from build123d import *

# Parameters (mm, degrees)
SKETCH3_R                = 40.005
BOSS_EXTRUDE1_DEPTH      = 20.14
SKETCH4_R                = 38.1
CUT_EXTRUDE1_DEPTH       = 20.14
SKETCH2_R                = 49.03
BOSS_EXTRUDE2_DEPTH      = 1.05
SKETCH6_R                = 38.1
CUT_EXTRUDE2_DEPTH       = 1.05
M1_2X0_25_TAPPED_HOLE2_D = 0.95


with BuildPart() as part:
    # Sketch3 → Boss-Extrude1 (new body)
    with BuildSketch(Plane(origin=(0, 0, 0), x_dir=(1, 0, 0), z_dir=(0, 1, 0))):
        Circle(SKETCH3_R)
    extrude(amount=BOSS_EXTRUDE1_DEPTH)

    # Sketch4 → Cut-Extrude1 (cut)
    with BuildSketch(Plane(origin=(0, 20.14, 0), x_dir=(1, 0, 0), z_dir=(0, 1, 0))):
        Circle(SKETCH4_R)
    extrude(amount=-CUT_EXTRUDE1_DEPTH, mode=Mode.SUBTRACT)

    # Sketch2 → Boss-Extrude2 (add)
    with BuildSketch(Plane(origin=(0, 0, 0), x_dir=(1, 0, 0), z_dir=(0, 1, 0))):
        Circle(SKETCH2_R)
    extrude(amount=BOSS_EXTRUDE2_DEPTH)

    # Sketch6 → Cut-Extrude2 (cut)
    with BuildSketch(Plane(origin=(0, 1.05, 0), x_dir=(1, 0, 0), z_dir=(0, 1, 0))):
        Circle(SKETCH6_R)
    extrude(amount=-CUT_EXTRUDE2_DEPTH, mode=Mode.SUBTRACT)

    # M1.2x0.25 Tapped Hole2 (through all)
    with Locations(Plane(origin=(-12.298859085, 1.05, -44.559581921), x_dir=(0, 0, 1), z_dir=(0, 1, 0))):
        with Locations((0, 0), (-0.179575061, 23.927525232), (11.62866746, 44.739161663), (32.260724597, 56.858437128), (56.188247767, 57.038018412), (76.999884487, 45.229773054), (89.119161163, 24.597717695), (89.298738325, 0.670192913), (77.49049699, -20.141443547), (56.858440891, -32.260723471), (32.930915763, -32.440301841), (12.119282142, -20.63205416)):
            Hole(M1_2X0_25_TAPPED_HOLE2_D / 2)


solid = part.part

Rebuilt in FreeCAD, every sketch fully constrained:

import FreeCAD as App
import Part
import Sketcher

V = App.Vector
Q = App.Units.Quantity

doc = App.newDocument("Part")
params = doc.addObject("Spreadsheet::Sheet", "Params")
for row, (alias, value) in enumerate([
    ("sketch1_diameter", "3.15 in"),
    ("pad1_length", "20.14 mm"),
    ("sketch2_diameter", "3 in"),
    ("pocket1_length", "20.14 mm"),
    ("pad2_length", "1.05 mm"),
    ("sketch4_diameter", "3 in"),
    ("pocket2_length", "1.05 mm"),
    ("hole_diameter", "0.95 mm"),
], start=1):
    params.set(f"A{row}", alias)
    params.set(f"B{row}", "=" + value)
    params.setAlias(f"B{row}", alias)

body = doc.addObject("PartDesign::Body", "Body")

sketch1 = body.newObject("Sketcher::SketchObject", "Sketch")
sketch1.AttachmentSupport = (doc.getObject("XZ_Plane"), [""])
sketch1.MapMode = "FlatFace"
sketch1.addGeometry(Part.Circle(V(0, 0, 0), V(0, 0, 1), 40), False)
sketch1.addConstraint([
    Sketcher.Constraint("Coincident", 0, 3, -1, 1),
    Sketcher.Constraint("Diameter", 0, Q("3.15 in")),
])
sketch1.setExpression("Constraints[1]", "Params.sketch1_diameter")
pad1 = body.newObject("PartDesign::Pad", "Pad")
pad1.Profile = sketch1
pad1.setExpression("Length", "Params.pad1_length")
pad1.Reversed = True

sketch2 = body.newObject("Sketcher::SketchObject", "Sketch001")
sketch2.AttachmentSupport = (doc.getObject("XZ_Plane"), [""])
sketch2.MapMode = "FlatFace"
sketch2.AttachmentOffset = App.Placement(V(0, 0, -20.14), App.Rotation())
sketch2.addGeometry(Part.Circle(V(0, 0, 0), V(0, 0, 1), 38), False)
sketch2.addConstraint([
    Sketcher.Constraint("Coincident", 0, 3, -1, 1),
    Sketcher.Constraint("Diameter", 0, Q("3 in")),
])
sketch2.setExpression("Constraints[1]", "Params.sketch2_diameter")
pocket1 = body.newObject("PartDesign::Pocket", "Pocket")
pocket1.Profile = sketch2
pocket1.setExpression("Length", "Params.pocket1_length")
pocket1.Reversed = True

sketch3 = body.newObject("Sketcher::SketchObject", "Sketch002")
sketch3.AttachmentSupport = (doc.getObject("XZ_Plane"), [""])
sketch3.MapMode = "FlatFace"
sketch3.addGeometry(Part.Circle(V(0, 0, 0), V(0, 0, 1), 49), False)
sketch3.addConstraint([
    Sketcher.Constraint("Coincident", 0, 3, -1, 1),
    Sketcher.Constraint("Diameter", 0, Q("98.06 mm")),
])
pad2 = body.newObject("PartDesign::Pad", "Pad001")
pad2.Profile = sketch3
pad2.setExpression("Length", "Params.pad2_length")
pad2.Reversed = True

sketch4 = body.newObject("Sketcher::SketchObject", "Sketch003")
sketch4.AttachmentSupport = (doc.getObject("XZ_Plane"), [""])
sketch4.MapMode = "FlatFace"
sketch4.AttachmentOffset = App.Placement(V(0, 0, -1.05), App.Rotation())
sketch4.addGeometry(Part.Circle(V(0, 0, 0), V(0, 0, 1), 38), False)
sketch4.addConstraint([
    Sketcher.Constraint("Coincident", 0, 3, -1, 1),
    Sketcher.Constraint("Diameter", 0, Q("3 in")),
])
sketch4.setExpression("Constraints[1]", "Params.sketch4_diameter")
pocket2 = body.newObject("PartDesign::Pocket", "Pocket001")
pocket2.Profile = sketch4
pocket2.setExpression("Length", "Params.pocket2_length")
pocket2.Reversed = True

sketch5 = body.newObject("Sketcher::SketchObject", "Sketch004")
sketch5.AttachmentSupport = (doc.getObject("XZ_Plane"), [""])
sketch5.MapMode = "FlatFace"
sketch5.AttachmentOffset = App.Placement(V(0, 0, -1.05), App.Rotation())
sketch5.addGeometry([
    Part.Circle(V(-12.3, -44.56, 0), V(0, 0, 1), 0.47),
    Part.Circle(V(11.63, -44.74, 0), V(0, 0, 1), 0.47),
    Part.Circle(V(32.44, -32.93, 0), V(0, 0, 1), 0.47),
    Part.Circle(V(44.56, -12.3, 0), V(0, 0, 1), 0.47),
    Part.Circle(V(44.74, 11.63, 0), V(0, 0, 1), 0.47),
    Part.Circle(V(32.93, 32.44, 0), V(0, 0, 1), 0.47),
    Part.Circle(V(12.3, 44.56, 0), V(0, 0, 1), 0.47),
    Part.Circle(V(-11.63, 44.74, 0), V(0, 0, 1), 0.47),
    Part.Circle(V(-32.44, 32.93, 0), V(0, 0, 1), 0.47),
    Part.Circle(V(-44.56, 12.3, 0), V(0, 0, 1), 0.47),
    Part.Circle(V(-44.74, -11.63, 0), V(0, 0, 1), 0.47),
    Part.Circle(V(-32.93, -32.44, 0), V(0, 0, 1), 0.47),
], False)
sketch5.addConstraint([
    Sketcher.Constraint("Equal", 0, 1),
    Sketcher.Constraint("Equal", 1, 2),
    Sketcher.Constraint("Equal", 2, 3),
    Sketcher.Constraint("Equal", 3, 4),
    Sketcher.Constraint("Equal", 4, 5),
    Sketcher.Constraint("Equal", 5, 6),
    Sketcher.Constraint("Equal", 6, 7),
    Sketcher.Constraint("Equal", 7, 8),
    Sketcher.Constraint("Equal", 8, 9),
    Sketcher.Constraint("Equal", 9, 10),
    Sketcher.Constraint("Equal", 10, 11),
    Sketcher.Constraint("Symmetric", 0, 3, 6, 3, -1, 1),
    Sketcher.Constraint("Symmetric", 1, 3, 7, 3, -1, 1),
    Sketcher.Constraint("Symmetric", 2, 3, 8, 3, -1, 1),
    Sketcher.Constraint("Symmetric", 3, 3, 9, 3, -1, 1),
    Sketcher.Constraint("Symmetric", 4, 3, 10, 3, -1, 1),
    Sketcher.Constraint("Symmetric", 5, 3, 11, 3, -1, 1),
    Sketcher.Constraint("Diameter", 0, Q("0.95 mm")),
    Sketcher.Constraint("DistanceY", 11, 3, -1, 1, Q("32.4403 mm")),
    Sketcher.Constraint("DistanceY", 1, 3, 3, 3, Q("32.4403 mm")),
    Sketcher.Constraint("DistanceX", 6, 3, 4, 3, Q("32.440301 mm")),
    Sketcher.Constraint("DistanceX", 0, 3, -1, 1, Q("12.298859 mm")),
    Sketcher.Constraint("DistanceY", 0, 3, -1, 1, Q("44.559582 mm")),
    Sketcher.Constraint("DistanceX", -1, 1, 3, 3, Q("44.559578 mm")),
    Sketcher.Constraint("DistanceY", -1, 1, 9, 3, Q("12.298859 mm")),
    Sketcher.Constraint("DistanceX", 0, 3, 2, 3, Q("44.739162 mm")),
    Sketcher.Constraint("DistanceX", 1, 3, 3, 3, Q("32.930912 mm")),
    Sketcher.Constraint("DistanceY", 2, 3, 4, 3, Q("44.55958 mm")),
    Sketcher.Constraint("DistanceX", 2, 3, 5, 3, Q("0.490611 mm")),
    Sketcher.Constraint("DistanceY", 4, 3, 7, 3, Q("33.110491 mm")),
])
doc.recompute()
hole = body.newObject("PartDesign::Hole", "Hole")
hole.Profile = sketch5
hole.ThreadType = "None"
hole.setExpression("Diameter", "Params.hole_diameter")
hole.DepthType = "ThroughAll"
hole.Reversed = True

doc.recompute()
